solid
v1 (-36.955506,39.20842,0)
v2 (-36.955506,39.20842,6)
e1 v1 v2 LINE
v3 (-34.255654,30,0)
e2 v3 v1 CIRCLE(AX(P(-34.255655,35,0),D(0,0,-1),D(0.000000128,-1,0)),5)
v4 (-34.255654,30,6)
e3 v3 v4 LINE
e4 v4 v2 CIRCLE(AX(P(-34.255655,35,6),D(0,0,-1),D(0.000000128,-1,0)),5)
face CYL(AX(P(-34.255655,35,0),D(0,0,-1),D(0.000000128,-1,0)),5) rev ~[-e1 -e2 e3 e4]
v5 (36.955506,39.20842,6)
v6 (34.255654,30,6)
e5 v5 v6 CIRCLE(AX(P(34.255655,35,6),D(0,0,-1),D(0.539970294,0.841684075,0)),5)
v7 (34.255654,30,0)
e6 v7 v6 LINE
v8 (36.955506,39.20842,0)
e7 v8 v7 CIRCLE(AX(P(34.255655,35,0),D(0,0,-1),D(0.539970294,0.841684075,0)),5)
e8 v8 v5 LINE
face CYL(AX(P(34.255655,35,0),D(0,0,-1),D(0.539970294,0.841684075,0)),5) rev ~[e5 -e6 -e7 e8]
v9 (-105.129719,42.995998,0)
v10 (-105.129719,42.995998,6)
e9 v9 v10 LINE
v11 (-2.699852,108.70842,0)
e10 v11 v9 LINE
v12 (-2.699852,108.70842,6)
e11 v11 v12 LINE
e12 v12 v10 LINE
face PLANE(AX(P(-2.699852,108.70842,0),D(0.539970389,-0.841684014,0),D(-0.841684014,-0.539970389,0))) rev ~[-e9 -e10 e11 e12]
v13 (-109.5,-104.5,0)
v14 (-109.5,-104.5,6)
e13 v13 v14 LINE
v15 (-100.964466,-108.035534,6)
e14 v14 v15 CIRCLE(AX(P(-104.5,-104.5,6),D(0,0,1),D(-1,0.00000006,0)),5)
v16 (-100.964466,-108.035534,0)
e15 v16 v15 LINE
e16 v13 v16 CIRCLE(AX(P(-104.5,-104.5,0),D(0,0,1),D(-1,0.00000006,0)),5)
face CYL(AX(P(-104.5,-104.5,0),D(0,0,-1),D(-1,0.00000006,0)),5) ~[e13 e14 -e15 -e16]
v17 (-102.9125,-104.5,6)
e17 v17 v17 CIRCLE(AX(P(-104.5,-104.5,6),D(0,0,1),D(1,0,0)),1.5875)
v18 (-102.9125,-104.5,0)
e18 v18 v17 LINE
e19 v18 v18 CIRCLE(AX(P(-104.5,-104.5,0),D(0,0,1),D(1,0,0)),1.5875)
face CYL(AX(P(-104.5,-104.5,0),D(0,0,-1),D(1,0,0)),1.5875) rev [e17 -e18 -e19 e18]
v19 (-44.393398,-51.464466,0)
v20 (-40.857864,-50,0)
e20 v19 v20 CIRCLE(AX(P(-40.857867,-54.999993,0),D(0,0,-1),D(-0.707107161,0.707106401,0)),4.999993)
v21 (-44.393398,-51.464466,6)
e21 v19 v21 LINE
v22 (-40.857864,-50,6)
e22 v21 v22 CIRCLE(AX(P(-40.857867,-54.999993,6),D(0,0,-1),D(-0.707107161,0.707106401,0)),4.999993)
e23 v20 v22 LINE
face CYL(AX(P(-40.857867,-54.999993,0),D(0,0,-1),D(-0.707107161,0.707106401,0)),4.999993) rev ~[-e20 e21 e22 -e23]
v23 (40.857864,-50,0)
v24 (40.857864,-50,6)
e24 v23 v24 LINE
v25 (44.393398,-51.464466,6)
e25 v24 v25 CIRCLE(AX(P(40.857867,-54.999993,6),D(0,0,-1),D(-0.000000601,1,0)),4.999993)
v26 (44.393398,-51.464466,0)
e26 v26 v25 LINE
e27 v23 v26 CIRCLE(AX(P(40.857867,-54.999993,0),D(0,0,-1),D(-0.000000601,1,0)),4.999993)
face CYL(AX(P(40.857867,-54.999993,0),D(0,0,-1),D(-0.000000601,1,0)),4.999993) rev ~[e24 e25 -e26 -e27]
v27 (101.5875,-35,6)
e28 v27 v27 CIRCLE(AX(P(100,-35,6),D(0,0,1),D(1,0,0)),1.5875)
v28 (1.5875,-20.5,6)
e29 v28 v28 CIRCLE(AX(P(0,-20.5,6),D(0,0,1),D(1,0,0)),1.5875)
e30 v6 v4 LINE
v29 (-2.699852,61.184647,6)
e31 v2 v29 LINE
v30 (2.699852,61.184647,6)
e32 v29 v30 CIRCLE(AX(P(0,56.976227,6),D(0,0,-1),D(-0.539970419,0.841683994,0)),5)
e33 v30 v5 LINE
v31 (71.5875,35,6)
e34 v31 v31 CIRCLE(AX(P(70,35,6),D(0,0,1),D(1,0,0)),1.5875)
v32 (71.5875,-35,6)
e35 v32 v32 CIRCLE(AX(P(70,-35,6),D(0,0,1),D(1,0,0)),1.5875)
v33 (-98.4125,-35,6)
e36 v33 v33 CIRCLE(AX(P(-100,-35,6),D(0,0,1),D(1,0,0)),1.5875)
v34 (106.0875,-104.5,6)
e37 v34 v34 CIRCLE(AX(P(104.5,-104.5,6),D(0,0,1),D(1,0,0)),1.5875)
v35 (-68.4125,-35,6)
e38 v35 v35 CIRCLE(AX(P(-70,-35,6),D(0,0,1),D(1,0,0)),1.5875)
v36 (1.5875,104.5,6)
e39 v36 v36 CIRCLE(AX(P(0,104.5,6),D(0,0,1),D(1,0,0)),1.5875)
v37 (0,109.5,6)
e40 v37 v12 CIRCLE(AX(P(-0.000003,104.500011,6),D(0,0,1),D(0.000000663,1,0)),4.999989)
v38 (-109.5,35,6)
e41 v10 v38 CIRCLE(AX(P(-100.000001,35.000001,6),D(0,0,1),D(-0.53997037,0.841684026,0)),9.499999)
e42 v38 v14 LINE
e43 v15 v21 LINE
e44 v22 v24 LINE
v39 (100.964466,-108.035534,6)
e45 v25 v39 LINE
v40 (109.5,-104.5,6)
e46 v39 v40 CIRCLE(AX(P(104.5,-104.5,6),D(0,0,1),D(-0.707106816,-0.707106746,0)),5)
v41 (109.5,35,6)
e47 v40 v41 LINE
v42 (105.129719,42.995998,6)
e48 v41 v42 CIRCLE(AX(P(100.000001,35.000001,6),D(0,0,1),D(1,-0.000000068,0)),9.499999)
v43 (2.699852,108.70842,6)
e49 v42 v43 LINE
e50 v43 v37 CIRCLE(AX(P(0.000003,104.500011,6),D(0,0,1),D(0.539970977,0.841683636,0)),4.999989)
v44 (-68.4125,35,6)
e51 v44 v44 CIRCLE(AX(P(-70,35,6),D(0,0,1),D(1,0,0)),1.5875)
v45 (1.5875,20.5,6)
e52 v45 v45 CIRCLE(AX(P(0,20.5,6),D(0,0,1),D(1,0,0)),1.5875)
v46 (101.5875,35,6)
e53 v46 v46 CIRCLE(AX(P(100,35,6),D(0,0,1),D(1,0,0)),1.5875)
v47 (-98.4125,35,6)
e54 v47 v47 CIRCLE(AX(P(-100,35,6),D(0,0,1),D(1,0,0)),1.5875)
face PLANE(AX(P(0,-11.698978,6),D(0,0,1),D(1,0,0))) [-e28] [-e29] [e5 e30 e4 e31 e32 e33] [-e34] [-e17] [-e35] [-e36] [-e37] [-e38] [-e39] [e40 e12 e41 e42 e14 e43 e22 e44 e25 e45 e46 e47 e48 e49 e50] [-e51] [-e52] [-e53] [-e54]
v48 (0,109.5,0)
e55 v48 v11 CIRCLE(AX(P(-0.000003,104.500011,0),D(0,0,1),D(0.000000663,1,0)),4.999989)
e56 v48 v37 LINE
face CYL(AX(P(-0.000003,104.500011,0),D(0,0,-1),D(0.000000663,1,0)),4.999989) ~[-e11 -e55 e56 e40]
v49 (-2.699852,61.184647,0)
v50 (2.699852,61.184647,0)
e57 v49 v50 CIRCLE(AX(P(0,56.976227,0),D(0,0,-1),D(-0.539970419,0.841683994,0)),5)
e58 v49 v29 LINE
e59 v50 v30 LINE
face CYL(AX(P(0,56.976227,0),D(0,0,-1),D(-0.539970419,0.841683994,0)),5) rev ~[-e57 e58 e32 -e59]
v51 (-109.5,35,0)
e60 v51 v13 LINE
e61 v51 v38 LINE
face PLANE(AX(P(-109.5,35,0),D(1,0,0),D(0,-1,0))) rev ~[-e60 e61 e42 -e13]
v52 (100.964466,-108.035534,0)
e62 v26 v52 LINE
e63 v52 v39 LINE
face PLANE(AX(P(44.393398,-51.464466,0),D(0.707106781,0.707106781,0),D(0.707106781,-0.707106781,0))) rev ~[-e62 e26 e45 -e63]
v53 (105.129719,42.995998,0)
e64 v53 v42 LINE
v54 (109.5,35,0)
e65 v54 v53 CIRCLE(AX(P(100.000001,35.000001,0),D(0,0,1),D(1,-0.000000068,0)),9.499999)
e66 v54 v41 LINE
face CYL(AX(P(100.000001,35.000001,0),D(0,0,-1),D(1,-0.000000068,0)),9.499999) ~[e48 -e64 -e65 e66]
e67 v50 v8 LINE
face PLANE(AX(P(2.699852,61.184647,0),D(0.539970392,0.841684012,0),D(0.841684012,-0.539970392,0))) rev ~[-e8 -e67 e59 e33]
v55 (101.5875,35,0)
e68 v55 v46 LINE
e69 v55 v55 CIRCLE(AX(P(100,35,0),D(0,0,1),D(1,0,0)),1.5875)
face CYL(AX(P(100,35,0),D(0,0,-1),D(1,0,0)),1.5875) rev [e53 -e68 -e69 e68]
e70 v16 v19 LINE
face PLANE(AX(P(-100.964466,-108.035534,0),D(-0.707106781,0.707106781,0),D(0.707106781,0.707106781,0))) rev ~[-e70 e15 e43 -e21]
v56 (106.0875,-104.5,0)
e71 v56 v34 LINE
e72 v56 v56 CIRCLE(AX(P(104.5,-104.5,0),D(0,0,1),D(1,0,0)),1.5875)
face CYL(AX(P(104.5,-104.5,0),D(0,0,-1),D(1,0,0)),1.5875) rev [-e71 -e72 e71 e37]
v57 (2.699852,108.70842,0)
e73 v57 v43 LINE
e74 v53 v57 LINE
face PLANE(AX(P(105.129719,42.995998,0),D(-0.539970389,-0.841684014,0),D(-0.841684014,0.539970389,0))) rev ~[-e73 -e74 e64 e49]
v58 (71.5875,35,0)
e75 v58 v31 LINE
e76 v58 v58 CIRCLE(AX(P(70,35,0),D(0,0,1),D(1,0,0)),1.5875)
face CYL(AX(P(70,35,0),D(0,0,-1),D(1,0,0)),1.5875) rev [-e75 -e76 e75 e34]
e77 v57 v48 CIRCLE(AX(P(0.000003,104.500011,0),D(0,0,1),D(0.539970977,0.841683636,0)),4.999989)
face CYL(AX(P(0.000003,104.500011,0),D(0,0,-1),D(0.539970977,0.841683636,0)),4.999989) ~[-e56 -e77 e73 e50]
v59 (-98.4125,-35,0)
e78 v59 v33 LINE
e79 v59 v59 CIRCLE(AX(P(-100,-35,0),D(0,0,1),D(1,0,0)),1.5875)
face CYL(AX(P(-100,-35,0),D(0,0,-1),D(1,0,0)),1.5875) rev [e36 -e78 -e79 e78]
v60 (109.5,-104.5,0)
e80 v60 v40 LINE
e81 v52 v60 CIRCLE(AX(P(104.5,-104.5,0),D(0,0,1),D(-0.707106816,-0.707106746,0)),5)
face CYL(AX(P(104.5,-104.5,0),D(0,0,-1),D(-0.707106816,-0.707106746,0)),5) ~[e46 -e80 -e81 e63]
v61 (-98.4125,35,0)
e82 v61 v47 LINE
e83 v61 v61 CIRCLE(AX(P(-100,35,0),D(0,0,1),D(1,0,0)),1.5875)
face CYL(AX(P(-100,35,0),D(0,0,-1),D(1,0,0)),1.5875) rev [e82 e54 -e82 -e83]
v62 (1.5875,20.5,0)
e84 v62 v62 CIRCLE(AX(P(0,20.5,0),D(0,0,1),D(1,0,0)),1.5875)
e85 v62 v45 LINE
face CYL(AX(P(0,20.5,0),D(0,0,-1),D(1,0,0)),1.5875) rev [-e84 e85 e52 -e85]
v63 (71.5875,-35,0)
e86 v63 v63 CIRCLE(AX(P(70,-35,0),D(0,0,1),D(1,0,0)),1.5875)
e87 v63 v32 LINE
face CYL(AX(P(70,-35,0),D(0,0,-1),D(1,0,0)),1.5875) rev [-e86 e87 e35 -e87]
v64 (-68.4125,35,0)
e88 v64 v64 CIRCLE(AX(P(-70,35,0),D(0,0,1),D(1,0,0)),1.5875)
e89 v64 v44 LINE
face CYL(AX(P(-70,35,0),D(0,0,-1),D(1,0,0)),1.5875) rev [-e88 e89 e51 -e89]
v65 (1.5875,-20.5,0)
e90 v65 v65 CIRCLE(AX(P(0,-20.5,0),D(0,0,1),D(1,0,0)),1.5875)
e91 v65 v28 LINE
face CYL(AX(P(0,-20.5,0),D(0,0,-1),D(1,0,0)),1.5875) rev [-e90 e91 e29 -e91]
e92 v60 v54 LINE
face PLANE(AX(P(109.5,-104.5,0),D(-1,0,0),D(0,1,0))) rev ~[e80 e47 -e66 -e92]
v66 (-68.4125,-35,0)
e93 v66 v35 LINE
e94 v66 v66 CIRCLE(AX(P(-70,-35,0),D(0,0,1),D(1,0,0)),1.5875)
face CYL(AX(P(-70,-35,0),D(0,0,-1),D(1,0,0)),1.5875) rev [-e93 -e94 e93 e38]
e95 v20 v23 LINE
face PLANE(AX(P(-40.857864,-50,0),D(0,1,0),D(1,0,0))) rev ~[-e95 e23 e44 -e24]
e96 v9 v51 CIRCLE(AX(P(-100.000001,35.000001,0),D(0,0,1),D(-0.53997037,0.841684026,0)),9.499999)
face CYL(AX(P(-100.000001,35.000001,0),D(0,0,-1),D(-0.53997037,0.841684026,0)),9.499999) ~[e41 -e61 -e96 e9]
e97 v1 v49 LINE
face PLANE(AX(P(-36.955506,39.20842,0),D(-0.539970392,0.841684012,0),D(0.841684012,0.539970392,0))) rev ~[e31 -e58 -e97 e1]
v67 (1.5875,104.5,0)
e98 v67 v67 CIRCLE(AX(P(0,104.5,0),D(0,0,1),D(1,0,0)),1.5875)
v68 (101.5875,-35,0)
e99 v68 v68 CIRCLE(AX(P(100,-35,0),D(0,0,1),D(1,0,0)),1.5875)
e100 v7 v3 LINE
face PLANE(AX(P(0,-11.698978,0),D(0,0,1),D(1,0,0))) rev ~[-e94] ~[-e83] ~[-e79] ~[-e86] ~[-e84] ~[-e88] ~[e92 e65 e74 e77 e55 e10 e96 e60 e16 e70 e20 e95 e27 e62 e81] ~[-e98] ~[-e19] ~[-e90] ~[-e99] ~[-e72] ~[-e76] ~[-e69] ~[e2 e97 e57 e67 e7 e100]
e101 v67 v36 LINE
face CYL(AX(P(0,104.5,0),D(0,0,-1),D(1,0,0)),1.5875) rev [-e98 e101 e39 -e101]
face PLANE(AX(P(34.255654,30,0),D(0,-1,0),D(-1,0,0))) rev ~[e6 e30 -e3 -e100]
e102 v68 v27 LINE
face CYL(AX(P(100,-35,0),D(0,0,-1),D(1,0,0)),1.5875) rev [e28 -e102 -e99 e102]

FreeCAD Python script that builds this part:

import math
import FreeCAD as App
import Part
import Sketcher

doc = App.newDocument("Part")
params = doc.addObject("Spreadsheet::Sheet", "Params")
for row, (alias, value) in enumerate([
    ("sketch1_radius", "5 mm"),
    ("sketch1_radius2", "9.499999 mm"),
    ("sketch1_height", "139.5 mm"),
    ("pad1_length", "6 mm"),
], start=1):
    params.set(f"A{row}", alias)
    params.set(f"B{row}", "=" + value)
    params.setAlias(f"B{row}", alias)

body = doc.addObject("PartDesign::Body", "Body")

# Sketch on XY plane
sketch1 = doc.addObject("Sketcher::SketchObject", "Sketch")
body.addObject(sketch1)
sketch1.AttachmentSupport = (doc.XY_Plane, [""])
sketch1.MapMode = "FlatFace"
sketch1.addGeometry([
    Part.LineSegment(App.Vector(-109.5, 35, 0), App.Vector(-109.5, -104.5, 0)),  # 0
    Part.ArcOfCircle(Part.Circle(App.Vector(-104.5, -104.5, 0), App.Vector(0, 0, 1), 5), math.radians(179.999997), math.radians(315.000003)),  # 1
    Part.LineSegment(App.Vector(-100.964466, -108.035534, 0), App.Vector(-44.393398, -51.464466, 0)),  # 2
    Part.ArcOfCircle(Part.Circle(App.Vector(-40.857867, -54.999993, 0), App.Vector(0, 0, 1), 4.999993), math.radians(89.999966), math.radians(135.000031)),  # 3
    Part.LineSegment(App.Vector(-40.857864, -50, 0), App.Vector(40.857864, -50, 0)),  # 4
    Part.ArcOfCircle(Part.Circle(App.Vector(40.857867, -54.999993, 0), App.Vector(0, 0, 1), 4.999993), math.radians(44.999969), math.radians(90.000034)),  # 5
    Part.LineSegment(App.Vector(44.393398, -51.464466, 0), App.Vector(100.964466, -108.035534, 0)),  # 6
    Part.ArcOfCircle(Part.Circle(App.Vector(104.5, -104.5, 0), App.Vector(0, 0, 1), 5), math.radians(-135.000003), math.radians(0.000003)),  # 7
    Part.LineSegment(App.Vector(109.5, -104.5, 0), App.Vector(109.5, 35, 0)),  # 8
    Part.ArcOfCircle(Part.Circle(App.Vector(100.000001, 35.000001, 0), App.Vector(0, 0, 1), 9.499999), math.radians(-0.000004), math.radians(57.318378)),  # 9
    Part.LineSegment(App.Vector(105.129719, 42.995998, 0), App.Vector(2.699852, 108.70842, 0)),  # 10
    Part.ArcOfCircle(Part.Circle(App.Vector(0.000003, 104.500011, 0), App.Vector(0, 0, 1), 4.999989), math.radians(57.318337), math.radians(90.000038)),  # 11
    Part.ArcOfCircle(Part.Circle(App.Vector(-0.000003, 104.500011, 0), App.Vector(0, 0, 1), 4.999989), math.radians(89.999962), math.radians(122.681663)),  # 12
    Part.LineSegment(App.Vector(-2.699852, 108.70842, 0), App.Vector(-105.129719, 42.995998, 0)),  # 13
    Part.ArcOfCircle(Part.Circle(App.Vector(-100.000001, 35.000001, 0), App.Vector(0, 0, 1), 9.499999), math.radians(122.681622), math.radians(180.000004)),  # 14
    Part.Circle(App.Vector(-104.5, -104.5, 0), App.Vector(0, 0, 1), 1.5875),  # 15
    Part.Circle(App.Vector(-100, -35, 0), App.Vector(0, 0, 1), 1.5875),  # 16
    Part.Circle(App.Vector(-70, -35, 0), App.Vector(0, 0, 1), 1.5875),  # 17
    Part.Circle(App.Vector(104.5, -104.5, 0), App.Vector(0, 0, 1), 1.5875),  # 18
    Part.Circle(App.Vector(0, -20.5, 0), App.Vector(0, 0, 1), 1.5875),  # 19
    Part.Circle(App.Vector(70, -35, 0), App.Vector(0, 0, 1), 1.5875),  # 20
    Part.Circle(App.Vector(100, -35, 0), App.Vector(0, 0, 1), 1.5875),  # 21
    Part.Circle(App.Vector(-100, 35, 0), App.Vector(0, 0, 1), 1.5875),  # 22
    Part.Circle(App.Vector(-70, 35, 0), App.Vector(0, 0, 1), 1.5875),  # 23
    Part.Circle(App.Vector(0, 20.5, 0), App.Vector(0, 0, 1), 1.5875),  # 24
    Part.ArcOfCircle(Part.Circle(App.Vector(34.255655, 35, 0), App.Vector(0, 0, 1), 5), math.radians(-90.000007), math.radians(57.318383)),  # 25
    Part.LineSegment(App.Vector(34.255654, 30, 0), App.Vector(-34.255654, 30, 0)),  # 26
    Part.ArcOfCircle(Part.Circle(App.Vector(-34.255655, 35, 0), App.Vector(0, 0, 1), 5), math.radians(122.681617), math.radians(270.000007)),  # 27
    Part.LineSegment(App.Vector(-36.955506, 39.20842, 0), App.Vector(-2.699852, 61.184647, 0)),  # 28
    Part.ArcOfCircle(Part.Circle(App.Vector(0, 56.976227, 0), App.Vector(0, 0, 1), 5), math.radians(57.318375), math.radians(122.681625)),  # 29
    Part.LineSegment(App.Vector(2.699852, 61.184647, 0), App.Vector(36.955506, 39.20842, 0)),  # 30
    Part.Circle(App.Vector(70, 35, 0), App.Vector(0, 0, 1), 1.5875),  # 31
    Part.Circle(App.Vector(100, 35, 0), App.Vector(0, 0, 1), 1.5875),  # 32
    Part.Circle(App.Vector(0, 104.5, 0), App.Vector(0, 0, 1), 1.5875),  # 33
], False)
sketch1.addConstraint([
    Sketcher.Constraint("Tangent", 0, 2, 1, 1),
    Sketcher.Constraint("Tangent", 1, 2, 2, 1),
    Sketcher.Constraint("Tangent", 2, 2, 3, 2),
    Sketcher.Constraint("Tangent", 3, 1, 4, 1),
    Sketcher.Constraint("Tangent", 4, 2, 5, 2),
    Sketcher.Constraint("Tangent", 5, 1, 6, 1),
    Sketcher.Constraint("Tangent", 6, 2, 7, 1),
    Sketcher.Constraint("Tangent", 7, 2, 8, 1),
    Sketcher.Constraint("Tangent", 8, 2, 9, 1),
    Sketcher.Constraint("Tangent", 9, 2, 10, 1),
    Sketcher.Constraint("Tangent", 10, 2, 11, 1),
    Sketcher.Constraint("Tangent", 11, 2, 12, 1),
    Sketcher.Constraint("Tangent", 12, 2, 13, 1),
    Sketcher.Constraint("Tangent", 13, 2, 14, 1),
    Sketcher.Constraint("Tangent", 14, 2, 0, 1),
    Sketcher.Constraint("Tangent", 25, 1, 26, 1),
    Sketcher.Constraint("Tangent", 26, 2, 27, 2),
    Sketcher.Constraint("Tangent", 27, 1, 28, 1),
    Sketcher.Constraint("Tangent", 28, 2, 29, 2),
    Sketcher.Constraint("Tangent", 29, 1, 30, 1),
    Sketcher.Constraint("Tangent", 30, 2, 25, 2),
    Sketcher.Constraint("Vertical", 0),
    Sketcher.Constraint("Horizontal", 4),
    Sketcher.Constraint("Vertical", 8),
    Sketcher.Constraint("Horizontal", 26),
    Sketcher.Constraint("Coincident", 15, 3, 1, 3),
    Sketcher.Constraint("Coincident", 18, 3, 7, 3),
    Sketcher.Constraint("Coincident", 22, 3, 14, 3),
    Sketcher.Constraint("Coincident", 32, 3, 9, 3),
    Sketcher.Constraint("Equal", 3, 5),
    Sketcher.Constraint("Equal", 1, 7),
    Sketcher.Constraint("Equal", 11, 12),
    Sketcher.Constraint("Equal", 9, 14),
    Sketcher.Constraint("Equal", 15, 16),
    Sketcher.Constraint("Equal", 16, 17),
    Sketcher.Constraint("Equal", 17, 18),
    Sketcher.Constraint("Equal", 18, 19),
    Sketcher.Constraint("Equal", 19, 20),
    Sketcher.Constraint("Equal", 20, 21),
    Sketcher.Constraint("Equal", 21, 22),
    Sketcher.Constraint("Equal", 22, 23),
    Sketcher.Constraint("Equal", 23, 24),
    Sketcher.Constraint("Equal", 7, 25),
    Sketcher.Constraint("Equal", 25, 27),
    Sketcher.Constraint("Equal", 27, 29),
    Sketcher.Constraint("Equal", 24, 31),
    Sketcher.Constraint("Equal", 31, 32),
    Sketcher.Constraint("Equal", 32, 33),
    Sketcher.Constraint("Symmetric", 9, 3, 16, 3, -1, 1),
    Sketcher.Constraint("Symmetric", 14, 3, 21, 3, -1, 1),
    Sketcher.Constraint("Symmetric", 20, 3, 23, 3, -1, 1),
    Sketcher.Constraint("Symmetric", 19, 3, 24, 3, -1, 1),
    Sketcher.Constraint("Symmetric", 17, 3, 31, 3, -1, 1),
    Sketcher.Constraint("Symmetric", 1, 3, 7, 3, -2),
    Sketcher.Constraint("Symmetric", 17, 3, 20, 3, -2),
    Sketcher.Constraint("Symmetric", 10, 2, 12, 2, -2),
    Sketcher.Constraint("Symmetric", 28, 2, 29, 1, -2),
    Sketcher.Constraint("PointOnObject", 19, 3, -2),
    Sketcher.Constraint("PointOnObject", 33, 3, -2),
    Sketcher.Constraint("PointOnObject", 11, 2, -2),
    Sketcher.Constraint("Perpendicular", 2, 6),
    Sketcher.Constraint("Parallel", 13, 28),
    Sketcher.Constraint("Horizontal", 16, 3, 17, 3),
    Sketcher.Constraint("Horizontal", 23, 3, 25, 3),
    Sketcher.Constraint("Horizontal", 2, 2, 5, 1),
    Sketcher.Constraint("Vertical", 12, 2, 28, 2),
    Sketcher.Constraint("Radius", 1, 5.0),
    Sketcher.Constraint("Radius", 9, 9.499999),
    Sketcher.Constraint("Diameter", 15, 3.175),
    Sketcher.Constraint("DistanceY", 0, 2, 0, 1, 139.5),
    Sketcher.Constraint("DistanceX", -1, 1, 9, 3, 100.000001),
    Sketcher.Constraint("DistanceY", -1, 1, 9, 3, 35.000001),
    Sketcher.Constraint("DistanceX", 17, 3, -1, 1, 70.0),
    Sketcher.Constraint("DistanceY", 3, 1, -1, 1, 50.0),
    Sketcher.Constraint("DistanceY", 19, 3, 24, 3, 41.0),
    Sketcher.Constraint("DistanceY", 33, 3, 11, 2, 5.0),
    Sketcher.Constraint("DistanceY", -1, 1, 33, 3, 104.5),
    Sketcher.Constraint("Radius", 3, 4.999993),
    Sketcher.Constraint("DistanceX", 26, 2, 26, 1, 68.511308),
])
sketch1.setExpression("Constraints[66]", "Params.sketch1_radius")
sketch1.setExpression("Constraints[67]", "Params.sketch1_radius2")
sketch1.setExpression("Constraints[69]", "Params.sketch1_height")
pad1 = doc.addObject("PartDesign::Pad", "Pad")
body.addObject(pad1)
pad1.Profile = sketch1
pad1.setExpression("Length", "Params.pad1_length")

doc.recompute()
